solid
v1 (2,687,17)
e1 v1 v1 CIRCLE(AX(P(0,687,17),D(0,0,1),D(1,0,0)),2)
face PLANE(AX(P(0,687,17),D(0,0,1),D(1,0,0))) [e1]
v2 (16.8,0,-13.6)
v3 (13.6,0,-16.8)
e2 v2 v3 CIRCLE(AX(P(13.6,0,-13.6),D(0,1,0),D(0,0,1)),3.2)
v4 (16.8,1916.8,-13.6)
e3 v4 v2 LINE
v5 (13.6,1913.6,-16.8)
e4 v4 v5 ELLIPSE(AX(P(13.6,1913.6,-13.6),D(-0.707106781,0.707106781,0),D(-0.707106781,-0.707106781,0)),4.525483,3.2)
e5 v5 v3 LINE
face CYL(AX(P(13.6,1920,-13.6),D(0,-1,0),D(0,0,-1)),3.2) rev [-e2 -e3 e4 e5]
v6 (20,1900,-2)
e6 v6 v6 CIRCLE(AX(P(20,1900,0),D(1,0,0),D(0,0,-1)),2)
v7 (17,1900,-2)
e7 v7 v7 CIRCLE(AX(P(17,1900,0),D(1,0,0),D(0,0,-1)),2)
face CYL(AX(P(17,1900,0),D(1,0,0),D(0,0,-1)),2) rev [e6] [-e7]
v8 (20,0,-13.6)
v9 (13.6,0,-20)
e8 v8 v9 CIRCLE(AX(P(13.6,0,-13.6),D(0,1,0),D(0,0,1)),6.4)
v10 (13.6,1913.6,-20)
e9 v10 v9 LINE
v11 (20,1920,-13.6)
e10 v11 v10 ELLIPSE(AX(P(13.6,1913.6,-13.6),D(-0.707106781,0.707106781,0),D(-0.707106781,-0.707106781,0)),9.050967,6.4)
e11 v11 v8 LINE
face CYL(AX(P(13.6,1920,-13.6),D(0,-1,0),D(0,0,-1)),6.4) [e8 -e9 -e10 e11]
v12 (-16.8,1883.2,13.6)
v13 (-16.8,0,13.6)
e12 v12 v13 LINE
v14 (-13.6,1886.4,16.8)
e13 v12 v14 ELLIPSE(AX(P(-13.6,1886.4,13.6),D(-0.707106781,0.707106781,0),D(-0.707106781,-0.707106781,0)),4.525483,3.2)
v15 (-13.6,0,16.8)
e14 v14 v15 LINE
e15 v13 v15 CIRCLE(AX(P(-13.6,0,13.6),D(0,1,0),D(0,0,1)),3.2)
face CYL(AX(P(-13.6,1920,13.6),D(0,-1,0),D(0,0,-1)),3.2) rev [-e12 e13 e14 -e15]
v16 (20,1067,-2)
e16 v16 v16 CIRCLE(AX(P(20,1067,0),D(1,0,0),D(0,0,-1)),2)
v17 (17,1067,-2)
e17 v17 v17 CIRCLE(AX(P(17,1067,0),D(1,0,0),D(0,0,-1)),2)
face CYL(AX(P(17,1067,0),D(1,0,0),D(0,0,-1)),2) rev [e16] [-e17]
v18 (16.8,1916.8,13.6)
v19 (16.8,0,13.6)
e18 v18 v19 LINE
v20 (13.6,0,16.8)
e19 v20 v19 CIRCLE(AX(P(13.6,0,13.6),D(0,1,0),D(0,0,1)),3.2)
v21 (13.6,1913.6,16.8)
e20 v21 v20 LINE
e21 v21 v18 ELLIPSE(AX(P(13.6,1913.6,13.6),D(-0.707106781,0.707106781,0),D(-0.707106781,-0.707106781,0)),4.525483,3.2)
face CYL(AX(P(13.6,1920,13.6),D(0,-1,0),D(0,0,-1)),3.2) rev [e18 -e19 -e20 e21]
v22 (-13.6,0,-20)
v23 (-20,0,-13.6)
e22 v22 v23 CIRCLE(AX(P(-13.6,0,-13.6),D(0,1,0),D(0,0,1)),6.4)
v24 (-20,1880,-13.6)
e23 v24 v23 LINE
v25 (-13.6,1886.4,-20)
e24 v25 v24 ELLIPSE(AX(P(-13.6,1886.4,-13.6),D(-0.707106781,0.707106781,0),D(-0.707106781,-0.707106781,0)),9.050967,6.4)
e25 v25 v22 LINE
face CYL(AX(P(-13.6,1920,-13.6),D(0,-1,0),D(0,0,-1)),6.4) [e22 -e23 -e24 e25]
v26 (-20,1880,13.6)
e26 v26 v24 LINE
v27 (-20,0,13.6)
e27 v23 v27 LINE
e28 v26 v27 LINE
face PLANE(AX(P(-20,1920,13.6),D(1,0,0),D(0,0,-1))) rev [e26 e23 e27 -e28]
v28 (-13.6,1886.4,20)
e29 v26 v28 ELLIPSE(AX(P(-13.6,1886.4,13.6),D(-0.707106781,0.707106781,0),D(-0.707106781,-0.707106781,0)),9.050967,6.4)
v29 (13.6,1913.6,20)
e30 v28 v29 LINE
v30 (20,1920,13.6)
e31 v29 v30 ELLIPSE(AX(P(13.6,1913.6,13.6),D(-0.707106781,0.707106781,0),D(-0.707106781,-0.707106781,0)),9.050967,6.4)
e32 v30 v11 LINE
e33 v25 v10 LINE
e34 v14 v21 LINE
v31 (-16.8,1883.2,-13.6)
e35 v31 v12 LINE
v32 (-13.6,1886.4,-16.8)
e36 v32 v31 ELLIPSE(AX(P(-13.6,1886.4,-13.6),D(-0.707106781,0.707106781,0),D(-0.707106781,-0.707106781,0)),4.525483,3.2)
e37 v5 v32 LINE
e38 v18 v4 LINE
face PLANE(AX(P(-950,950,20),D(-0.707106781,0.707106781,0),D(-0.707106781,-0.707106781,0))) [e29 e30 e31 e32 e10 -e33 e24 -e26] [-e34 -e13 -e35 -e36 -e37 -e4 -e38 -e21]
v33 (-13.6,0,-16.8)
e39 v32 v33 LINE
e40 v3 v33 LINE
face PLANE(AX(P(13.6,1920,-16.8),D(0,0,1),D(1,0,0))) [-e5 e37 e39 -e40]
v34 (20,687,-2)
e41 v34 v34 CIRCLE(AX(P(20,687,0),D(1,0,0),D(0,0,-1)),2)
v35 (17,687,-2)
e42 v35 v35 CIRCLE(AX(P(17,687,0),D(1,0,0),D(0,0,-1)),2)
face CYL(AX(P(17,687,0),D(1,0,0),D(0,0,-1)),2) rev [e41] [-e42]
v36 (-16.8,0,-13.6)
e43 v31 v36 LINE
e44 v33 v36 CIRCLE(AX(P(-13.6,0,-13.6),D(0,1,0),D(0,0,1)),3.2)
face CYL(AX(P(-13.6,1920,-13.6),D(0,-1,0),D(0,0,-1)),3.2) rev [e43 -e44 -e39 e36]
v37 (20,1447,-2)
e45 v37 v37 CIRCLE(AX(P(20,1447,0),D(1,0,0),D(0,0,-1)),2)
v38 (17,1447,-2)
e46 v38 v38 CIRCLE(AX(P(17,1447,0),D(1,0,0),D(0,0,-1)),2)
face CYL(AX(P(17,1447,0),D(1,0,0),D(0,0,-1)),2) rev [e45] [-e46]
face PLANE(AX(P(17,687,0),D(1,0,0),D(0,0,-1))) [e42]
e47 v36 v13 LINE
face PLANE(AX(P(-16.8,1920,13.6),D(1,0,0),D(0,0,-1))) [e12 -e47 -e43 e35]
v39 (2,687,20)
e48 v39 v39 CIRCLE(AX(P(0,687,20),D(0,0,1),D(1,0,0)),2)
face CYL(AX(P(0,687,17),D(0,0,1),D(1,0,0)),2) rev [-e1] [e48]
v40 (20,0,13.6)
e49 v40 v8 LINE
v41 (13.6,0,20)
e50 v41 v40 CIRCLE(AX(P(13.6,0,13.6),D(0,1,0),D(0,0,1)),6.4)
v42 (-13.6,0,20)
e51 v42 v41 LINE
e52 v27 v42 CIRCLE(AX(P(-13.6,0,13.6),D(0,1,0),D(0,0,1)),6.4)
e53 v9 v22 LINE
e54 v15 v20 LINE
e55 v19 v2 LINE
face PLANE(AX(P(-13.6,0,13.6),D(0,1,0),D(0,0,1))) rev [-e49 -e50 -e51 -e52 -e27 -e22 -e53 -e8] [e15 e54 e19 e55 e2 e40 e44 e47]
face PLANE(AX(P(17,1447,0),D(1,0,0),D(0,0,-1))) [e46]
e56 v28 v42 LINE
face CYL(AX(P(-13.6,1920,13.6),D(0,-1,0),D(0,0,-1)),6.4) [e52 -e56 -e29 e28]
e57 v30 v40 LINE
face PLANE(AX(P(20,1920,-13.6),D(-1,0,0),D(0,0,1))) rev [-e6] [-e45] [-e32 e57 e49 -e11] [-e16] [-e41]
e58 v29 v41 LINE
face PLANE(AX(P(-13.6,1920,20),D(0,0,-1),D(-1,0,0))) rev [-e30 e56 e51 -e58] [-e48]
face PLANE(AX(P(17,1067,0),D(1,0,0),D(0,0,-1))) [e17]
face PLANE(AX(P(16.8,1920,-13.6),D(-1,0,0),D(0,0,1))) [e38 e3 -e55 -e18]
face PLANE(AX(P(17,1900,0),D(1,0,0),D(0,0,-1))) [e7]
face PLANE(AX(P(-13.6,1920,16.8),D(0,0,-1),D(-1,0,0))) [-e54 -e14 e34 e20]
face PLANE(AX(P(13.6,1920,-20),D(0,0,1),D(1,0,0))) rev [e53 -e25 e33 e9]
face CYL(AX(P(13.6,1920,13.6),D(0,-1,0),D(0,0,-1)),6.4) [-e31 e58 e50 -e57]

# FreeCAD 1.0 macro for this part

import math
import FreeCAD as App
import Part
import Sketcher

V = App.Vector
Q = App.Units.Quantity

doc = App.newDocument("Part")
body = doc.addObject("PartDesign::Body", "Body")

sketch1 = body.newObject("Sketcher::SketchObject", "Sketch")
sketch1.AttachmentSupport = (doc.getObject("XZ_Plane"), [""])
sketch1.MapMode = "FlatFace"
sketch1.addGeometry([
    Part.LineSegment(V(13.6, -20, 0), V(-13.6, -20, 0)),
    Part.ArcOfCircle(Part.Circle(V(-13.6, -13.6, 0), V(0, 0, 1), 6.4), math.radians(180), math.radians(270)),
    Part.LineSegment(V(-20, -13.6, 0), V(-20, 13.6, 0)),
    Part.ArcOfCircle(Part.Circle(V(-13.6, 13.6, 0), V(0, 0, 1), 6.4), math.radians(90), math.radians(180)),
    Part.LineSegment(V(-13.6, 20, 0), V(13.6, 20, 0)),
    Part.ArcOfCircle(Part.Circle(V(13.6, 13.6, 0), V(0, 0, 1), 6.4), math.radians(0), math.radians(90)),
    Part.LineSegment(V(20, 13.6, 0), V(20, -13.6, 0)),
    Part.ArcOfCircle(Part.Circle(V(13.6, -13.6, 0), V(0, 0, 1), 6.4), math.radians(-90), math.radians(0)),
    Part.LineSegment(V(-13.6, -16.8, 0), V(13.6, -16.8, 0)),
    Part.ArcOfCircle(Part.Circle(V(13.6, -13.6, 0), V(0, 0, 1), 3.2), math.radians(-90), math.radians(0)),
    Part.LineSegment(V(16.8, -13.6, 0), V(16.8, 13.6, 0)),
    Part.ArcOfCircle(Part.Circle(V(13.6, 13.6, 0), V(0, 0, 1), 3.2), math.radians(0), math.radians(90)),
    Part.LineSegment(V(13.6, 16.8, 0), V(-13.6, 16.8, 0)),
    Part.ArcOfCircle(Part.Circle(V(-13.6, 13.6, 0), V(0, 0, 1), 3.2), math.radians(90), math.radians(180)),
    Part.LineSegment(V(-16.8, 13.6, 0), V(-16.8, -13.6, 0)),
    Part.ArcOfCircle(Part.Circle(V(-13.6, -13.6, 0), V(0, 0, 1), 3.2), math.radians(180), math.radians(270)),
], False)
sketch1.addConstraint([
    Sketcher.Constraint("Tangent", 0, 2, 1, 2),
    Sketcher.Constraint("Tangent", 1, 1, 2, 1),
    Sketcher.Constraint("Tangent", 2, 2, 3, 2),
    Sketcher.Constraint("Tangent", 3, 1, 4, 1),
    Sketcher.Constraint("Tangent", 4, 2, 5, 2),
    Sketcher.Constraint("Tangent", 5, 1, 6, 1),
    Sketcher.Constraint("Tangent", 6, 2, 7, 2),
    Sketcher.Constraint("Tangent", 7, 1, 0, 1),
    Sketcher.Constraint("Tangent", 8, 2, 9, 1),
    Sketcher.Constraint("Tangent", 9, 2, 10, 1),
    Sketcher.Constraint("Tangent", 10, 2, 11, 1),
    Sketcher.Constraint("Tangent", 11, 2, 12, 1),
    Sketcher.Constraint("Tangent", 12, 2, 13, 1),
    Sketcher.Constraint("Tangent", 13, 2, 14, 1),
    Sketcher.Constraint("Tangent", 14, 2, 15, 1),
    Sketcher.Constraint("Tangent", 15, 2, 8, 1),
    Sketcher.Constraint("Horizontal", 0),
    Sketcher.Constraint("Vertical", 2),
    Sketcher.Constraint("Horizontal", 4),
    Sketcher.Constraint("Vertical", 6),
    Sketcher.Constraint("Horizontal", 8),
    Sketcher.Constraint("Vertical", 10),
    Sketcher.Constraint("Horizontal", 12),
    Sketcher.Constraint("Vertical", 14),
    Sketcher.Constraint("Coincident", 9, 3, 7, 3),
    Sketcher.Constraint("Coincident", 11, 3, 5, 3),
    Sketcher.Constraint("Coincident", 13, 3, 3, 3),
    Sketcher.Constraint("Equal", 1, 3),
    Sketcher.Constraint("Equal", 3, 5),
    Sketcher.Constraint("Equal", 5, 7),
    Sketcher.Constraint("Equal", 13, 15),
    Sketcher.Constraint("Symmetric", 1, 3, 5, 3, -1, 1),
    Sketcher.Constraint("Equal", 12, 2),
    Sketcher.Constraint("Radius", 1, Q("6.4 mm")),
    Sketcher.Constraint("Radius", 9, Q("3.2 mm")),
    Sketcher.Constraint("DistanceX", 0, 2, 0, 1, Q("27.2 mm")),
])
pad1 = body.newObject("PartDesign::Pad", "Pad")
pad1.Profile = sketch1
pad1.Length = 1920
pad1.Reversed = True

sketch2 = body.newObject("Sketcher::SketchObject", "Sketch001")
sketch2.AttachmentSupport = (doc.getObject("XY_Plane"), [""])
sketch2.MapMode = "FlatFace"
sketch2.AttachmentOffset = App.Placement(V(0, 0, -20), App.Rotation())
sketch2.addGeometry([
    Part.LineSegment(V(20, 1920, 0), V(-20, 1880, 0)),
    Part.LineSegment(V(-20, 1880, 0), V(-20, 1920, 0)),
    Part.LineSegment(V(-20, 1920, 0), V(20, 1920, 0)),
], False)
sketch2.addConstraint([
    Sketcher.Constraint("Coincident", 0, 2, 1, 1),
    Sketcher.Constraint("Coincident", 1, 2, 2, 1),
    Sketcher.Constraint("Coincident", 2, 2, 0, 1),
    Sketcher.Constraint("Vertical", 1),
    Sketcher.Constraint("Horizontal", 2),
    Sketcher.Constraint("Equal", 2, 1),
    Sketcher.Constraint("DistanceX", 2, 1, 2, 2, Q("40 mm")),
    Sketcher.Constraint("DistanceX", 0, 2, -1, 1, Q("20 mm")),
    Sketcher.Constraint("DistanceY", -1, 1, 0, 2, Q("1880 mm")),
])
pocket1 = body.newObject("PartDesign::Pocket", "Pocket")
pocket1.Profile = sketch2
pocket1.Type = "ThroughAll"
pocket1.Reversed = True

sketch3 = body.newObject("Sketcher::SketchObject", "Sketch002")
sketch3.AttachmentSupport = (doc.getObject("YZ_Plane"), [""])
sketch3.MapMode = "FlatFace"
sketch3.AttachmentOffset = App.Placement(V(0, 0, 20), App.Rotation())
sketch3.addGeometry([
    Part.Circle(V(1900, 0, 0), V(0, 0, 1), 2),
    Part.Circle(V(1447, 0, 0), V(0, 0, 1), 2),
    Part.Circle(V(1067, 0, 0), V(0, 0, 1), 2),
    Part.Circle(V(687, 0, 0), V(0, 0, 1), 2),
], False)
sketch3.addConstraint([
    Sketcher.Constraint("Equal", 0, 1),
    Sketcher.Constraint("Equal", 1, 2),
    Sketcher.Constraint("Equal", 2, 3),
    Sketcher.Constraint("PointOnObject", 0, 3, -1),
    Sketcher.Constraint("PointOnObject", 1, 3, -1),
    Sketcher.Constraint("PointOnObject", 2, 3, -1),
    Sketcher.Constraint("PointOnObject", 3, 3, -1),
    Sketcher.Constraint("Diameter", 0, Q("4 mm")),
    Sketcher.Constraint("DistanceX", -1, 1, 0, 3, Q("1900 mm")),
    Sketcher.Constraint("DistanceX", -1, 1, 1, 3, Q("1447 mm")),
    Sketcher.Constraint("DistanceX", -1, 1, 2, 3, Q("1067 mm")),
    Sketcher.Constraint("DistanceX", -1, 1, 3, 3, Q("687 mm")),
])
pocket2 = body.newObject("PartDesign::Pocket", "Pocket001")
pocket2.Profile = sketch3
pocket2.Length = 3

sketch4 = body.newObject("Sketcher::SketchObject", "Sketch003")
sketch4.AttachmentSupport = (doc.getObject("XY_Plane"), [""])
sketch4.MapMode = "FlatFace"
sketch4.AttachmentOffset = App.Placement(V(0, 0, 20), App.Rotation())
sketch4.addGeometry(Part.Circle(V(0, 687, 0), V(0, 0, 1), 2), False)
sketch4.addConstraint([
    Sketcher.Constraint("PointOnObject", 0, 3, -2),
    Sketcher.Constraint("Diameter", 0, Q("4 mm")),
    Sketcher.Constraint("DistanceY", -1, 1, 0, 3, Q("687 mm")),
])
pocket3 = body.newObject("PartDesign::Pocket", "Pocket002")
pocket3.Profile = sketch4
pocket3.Length = 3

doc.recompute()
